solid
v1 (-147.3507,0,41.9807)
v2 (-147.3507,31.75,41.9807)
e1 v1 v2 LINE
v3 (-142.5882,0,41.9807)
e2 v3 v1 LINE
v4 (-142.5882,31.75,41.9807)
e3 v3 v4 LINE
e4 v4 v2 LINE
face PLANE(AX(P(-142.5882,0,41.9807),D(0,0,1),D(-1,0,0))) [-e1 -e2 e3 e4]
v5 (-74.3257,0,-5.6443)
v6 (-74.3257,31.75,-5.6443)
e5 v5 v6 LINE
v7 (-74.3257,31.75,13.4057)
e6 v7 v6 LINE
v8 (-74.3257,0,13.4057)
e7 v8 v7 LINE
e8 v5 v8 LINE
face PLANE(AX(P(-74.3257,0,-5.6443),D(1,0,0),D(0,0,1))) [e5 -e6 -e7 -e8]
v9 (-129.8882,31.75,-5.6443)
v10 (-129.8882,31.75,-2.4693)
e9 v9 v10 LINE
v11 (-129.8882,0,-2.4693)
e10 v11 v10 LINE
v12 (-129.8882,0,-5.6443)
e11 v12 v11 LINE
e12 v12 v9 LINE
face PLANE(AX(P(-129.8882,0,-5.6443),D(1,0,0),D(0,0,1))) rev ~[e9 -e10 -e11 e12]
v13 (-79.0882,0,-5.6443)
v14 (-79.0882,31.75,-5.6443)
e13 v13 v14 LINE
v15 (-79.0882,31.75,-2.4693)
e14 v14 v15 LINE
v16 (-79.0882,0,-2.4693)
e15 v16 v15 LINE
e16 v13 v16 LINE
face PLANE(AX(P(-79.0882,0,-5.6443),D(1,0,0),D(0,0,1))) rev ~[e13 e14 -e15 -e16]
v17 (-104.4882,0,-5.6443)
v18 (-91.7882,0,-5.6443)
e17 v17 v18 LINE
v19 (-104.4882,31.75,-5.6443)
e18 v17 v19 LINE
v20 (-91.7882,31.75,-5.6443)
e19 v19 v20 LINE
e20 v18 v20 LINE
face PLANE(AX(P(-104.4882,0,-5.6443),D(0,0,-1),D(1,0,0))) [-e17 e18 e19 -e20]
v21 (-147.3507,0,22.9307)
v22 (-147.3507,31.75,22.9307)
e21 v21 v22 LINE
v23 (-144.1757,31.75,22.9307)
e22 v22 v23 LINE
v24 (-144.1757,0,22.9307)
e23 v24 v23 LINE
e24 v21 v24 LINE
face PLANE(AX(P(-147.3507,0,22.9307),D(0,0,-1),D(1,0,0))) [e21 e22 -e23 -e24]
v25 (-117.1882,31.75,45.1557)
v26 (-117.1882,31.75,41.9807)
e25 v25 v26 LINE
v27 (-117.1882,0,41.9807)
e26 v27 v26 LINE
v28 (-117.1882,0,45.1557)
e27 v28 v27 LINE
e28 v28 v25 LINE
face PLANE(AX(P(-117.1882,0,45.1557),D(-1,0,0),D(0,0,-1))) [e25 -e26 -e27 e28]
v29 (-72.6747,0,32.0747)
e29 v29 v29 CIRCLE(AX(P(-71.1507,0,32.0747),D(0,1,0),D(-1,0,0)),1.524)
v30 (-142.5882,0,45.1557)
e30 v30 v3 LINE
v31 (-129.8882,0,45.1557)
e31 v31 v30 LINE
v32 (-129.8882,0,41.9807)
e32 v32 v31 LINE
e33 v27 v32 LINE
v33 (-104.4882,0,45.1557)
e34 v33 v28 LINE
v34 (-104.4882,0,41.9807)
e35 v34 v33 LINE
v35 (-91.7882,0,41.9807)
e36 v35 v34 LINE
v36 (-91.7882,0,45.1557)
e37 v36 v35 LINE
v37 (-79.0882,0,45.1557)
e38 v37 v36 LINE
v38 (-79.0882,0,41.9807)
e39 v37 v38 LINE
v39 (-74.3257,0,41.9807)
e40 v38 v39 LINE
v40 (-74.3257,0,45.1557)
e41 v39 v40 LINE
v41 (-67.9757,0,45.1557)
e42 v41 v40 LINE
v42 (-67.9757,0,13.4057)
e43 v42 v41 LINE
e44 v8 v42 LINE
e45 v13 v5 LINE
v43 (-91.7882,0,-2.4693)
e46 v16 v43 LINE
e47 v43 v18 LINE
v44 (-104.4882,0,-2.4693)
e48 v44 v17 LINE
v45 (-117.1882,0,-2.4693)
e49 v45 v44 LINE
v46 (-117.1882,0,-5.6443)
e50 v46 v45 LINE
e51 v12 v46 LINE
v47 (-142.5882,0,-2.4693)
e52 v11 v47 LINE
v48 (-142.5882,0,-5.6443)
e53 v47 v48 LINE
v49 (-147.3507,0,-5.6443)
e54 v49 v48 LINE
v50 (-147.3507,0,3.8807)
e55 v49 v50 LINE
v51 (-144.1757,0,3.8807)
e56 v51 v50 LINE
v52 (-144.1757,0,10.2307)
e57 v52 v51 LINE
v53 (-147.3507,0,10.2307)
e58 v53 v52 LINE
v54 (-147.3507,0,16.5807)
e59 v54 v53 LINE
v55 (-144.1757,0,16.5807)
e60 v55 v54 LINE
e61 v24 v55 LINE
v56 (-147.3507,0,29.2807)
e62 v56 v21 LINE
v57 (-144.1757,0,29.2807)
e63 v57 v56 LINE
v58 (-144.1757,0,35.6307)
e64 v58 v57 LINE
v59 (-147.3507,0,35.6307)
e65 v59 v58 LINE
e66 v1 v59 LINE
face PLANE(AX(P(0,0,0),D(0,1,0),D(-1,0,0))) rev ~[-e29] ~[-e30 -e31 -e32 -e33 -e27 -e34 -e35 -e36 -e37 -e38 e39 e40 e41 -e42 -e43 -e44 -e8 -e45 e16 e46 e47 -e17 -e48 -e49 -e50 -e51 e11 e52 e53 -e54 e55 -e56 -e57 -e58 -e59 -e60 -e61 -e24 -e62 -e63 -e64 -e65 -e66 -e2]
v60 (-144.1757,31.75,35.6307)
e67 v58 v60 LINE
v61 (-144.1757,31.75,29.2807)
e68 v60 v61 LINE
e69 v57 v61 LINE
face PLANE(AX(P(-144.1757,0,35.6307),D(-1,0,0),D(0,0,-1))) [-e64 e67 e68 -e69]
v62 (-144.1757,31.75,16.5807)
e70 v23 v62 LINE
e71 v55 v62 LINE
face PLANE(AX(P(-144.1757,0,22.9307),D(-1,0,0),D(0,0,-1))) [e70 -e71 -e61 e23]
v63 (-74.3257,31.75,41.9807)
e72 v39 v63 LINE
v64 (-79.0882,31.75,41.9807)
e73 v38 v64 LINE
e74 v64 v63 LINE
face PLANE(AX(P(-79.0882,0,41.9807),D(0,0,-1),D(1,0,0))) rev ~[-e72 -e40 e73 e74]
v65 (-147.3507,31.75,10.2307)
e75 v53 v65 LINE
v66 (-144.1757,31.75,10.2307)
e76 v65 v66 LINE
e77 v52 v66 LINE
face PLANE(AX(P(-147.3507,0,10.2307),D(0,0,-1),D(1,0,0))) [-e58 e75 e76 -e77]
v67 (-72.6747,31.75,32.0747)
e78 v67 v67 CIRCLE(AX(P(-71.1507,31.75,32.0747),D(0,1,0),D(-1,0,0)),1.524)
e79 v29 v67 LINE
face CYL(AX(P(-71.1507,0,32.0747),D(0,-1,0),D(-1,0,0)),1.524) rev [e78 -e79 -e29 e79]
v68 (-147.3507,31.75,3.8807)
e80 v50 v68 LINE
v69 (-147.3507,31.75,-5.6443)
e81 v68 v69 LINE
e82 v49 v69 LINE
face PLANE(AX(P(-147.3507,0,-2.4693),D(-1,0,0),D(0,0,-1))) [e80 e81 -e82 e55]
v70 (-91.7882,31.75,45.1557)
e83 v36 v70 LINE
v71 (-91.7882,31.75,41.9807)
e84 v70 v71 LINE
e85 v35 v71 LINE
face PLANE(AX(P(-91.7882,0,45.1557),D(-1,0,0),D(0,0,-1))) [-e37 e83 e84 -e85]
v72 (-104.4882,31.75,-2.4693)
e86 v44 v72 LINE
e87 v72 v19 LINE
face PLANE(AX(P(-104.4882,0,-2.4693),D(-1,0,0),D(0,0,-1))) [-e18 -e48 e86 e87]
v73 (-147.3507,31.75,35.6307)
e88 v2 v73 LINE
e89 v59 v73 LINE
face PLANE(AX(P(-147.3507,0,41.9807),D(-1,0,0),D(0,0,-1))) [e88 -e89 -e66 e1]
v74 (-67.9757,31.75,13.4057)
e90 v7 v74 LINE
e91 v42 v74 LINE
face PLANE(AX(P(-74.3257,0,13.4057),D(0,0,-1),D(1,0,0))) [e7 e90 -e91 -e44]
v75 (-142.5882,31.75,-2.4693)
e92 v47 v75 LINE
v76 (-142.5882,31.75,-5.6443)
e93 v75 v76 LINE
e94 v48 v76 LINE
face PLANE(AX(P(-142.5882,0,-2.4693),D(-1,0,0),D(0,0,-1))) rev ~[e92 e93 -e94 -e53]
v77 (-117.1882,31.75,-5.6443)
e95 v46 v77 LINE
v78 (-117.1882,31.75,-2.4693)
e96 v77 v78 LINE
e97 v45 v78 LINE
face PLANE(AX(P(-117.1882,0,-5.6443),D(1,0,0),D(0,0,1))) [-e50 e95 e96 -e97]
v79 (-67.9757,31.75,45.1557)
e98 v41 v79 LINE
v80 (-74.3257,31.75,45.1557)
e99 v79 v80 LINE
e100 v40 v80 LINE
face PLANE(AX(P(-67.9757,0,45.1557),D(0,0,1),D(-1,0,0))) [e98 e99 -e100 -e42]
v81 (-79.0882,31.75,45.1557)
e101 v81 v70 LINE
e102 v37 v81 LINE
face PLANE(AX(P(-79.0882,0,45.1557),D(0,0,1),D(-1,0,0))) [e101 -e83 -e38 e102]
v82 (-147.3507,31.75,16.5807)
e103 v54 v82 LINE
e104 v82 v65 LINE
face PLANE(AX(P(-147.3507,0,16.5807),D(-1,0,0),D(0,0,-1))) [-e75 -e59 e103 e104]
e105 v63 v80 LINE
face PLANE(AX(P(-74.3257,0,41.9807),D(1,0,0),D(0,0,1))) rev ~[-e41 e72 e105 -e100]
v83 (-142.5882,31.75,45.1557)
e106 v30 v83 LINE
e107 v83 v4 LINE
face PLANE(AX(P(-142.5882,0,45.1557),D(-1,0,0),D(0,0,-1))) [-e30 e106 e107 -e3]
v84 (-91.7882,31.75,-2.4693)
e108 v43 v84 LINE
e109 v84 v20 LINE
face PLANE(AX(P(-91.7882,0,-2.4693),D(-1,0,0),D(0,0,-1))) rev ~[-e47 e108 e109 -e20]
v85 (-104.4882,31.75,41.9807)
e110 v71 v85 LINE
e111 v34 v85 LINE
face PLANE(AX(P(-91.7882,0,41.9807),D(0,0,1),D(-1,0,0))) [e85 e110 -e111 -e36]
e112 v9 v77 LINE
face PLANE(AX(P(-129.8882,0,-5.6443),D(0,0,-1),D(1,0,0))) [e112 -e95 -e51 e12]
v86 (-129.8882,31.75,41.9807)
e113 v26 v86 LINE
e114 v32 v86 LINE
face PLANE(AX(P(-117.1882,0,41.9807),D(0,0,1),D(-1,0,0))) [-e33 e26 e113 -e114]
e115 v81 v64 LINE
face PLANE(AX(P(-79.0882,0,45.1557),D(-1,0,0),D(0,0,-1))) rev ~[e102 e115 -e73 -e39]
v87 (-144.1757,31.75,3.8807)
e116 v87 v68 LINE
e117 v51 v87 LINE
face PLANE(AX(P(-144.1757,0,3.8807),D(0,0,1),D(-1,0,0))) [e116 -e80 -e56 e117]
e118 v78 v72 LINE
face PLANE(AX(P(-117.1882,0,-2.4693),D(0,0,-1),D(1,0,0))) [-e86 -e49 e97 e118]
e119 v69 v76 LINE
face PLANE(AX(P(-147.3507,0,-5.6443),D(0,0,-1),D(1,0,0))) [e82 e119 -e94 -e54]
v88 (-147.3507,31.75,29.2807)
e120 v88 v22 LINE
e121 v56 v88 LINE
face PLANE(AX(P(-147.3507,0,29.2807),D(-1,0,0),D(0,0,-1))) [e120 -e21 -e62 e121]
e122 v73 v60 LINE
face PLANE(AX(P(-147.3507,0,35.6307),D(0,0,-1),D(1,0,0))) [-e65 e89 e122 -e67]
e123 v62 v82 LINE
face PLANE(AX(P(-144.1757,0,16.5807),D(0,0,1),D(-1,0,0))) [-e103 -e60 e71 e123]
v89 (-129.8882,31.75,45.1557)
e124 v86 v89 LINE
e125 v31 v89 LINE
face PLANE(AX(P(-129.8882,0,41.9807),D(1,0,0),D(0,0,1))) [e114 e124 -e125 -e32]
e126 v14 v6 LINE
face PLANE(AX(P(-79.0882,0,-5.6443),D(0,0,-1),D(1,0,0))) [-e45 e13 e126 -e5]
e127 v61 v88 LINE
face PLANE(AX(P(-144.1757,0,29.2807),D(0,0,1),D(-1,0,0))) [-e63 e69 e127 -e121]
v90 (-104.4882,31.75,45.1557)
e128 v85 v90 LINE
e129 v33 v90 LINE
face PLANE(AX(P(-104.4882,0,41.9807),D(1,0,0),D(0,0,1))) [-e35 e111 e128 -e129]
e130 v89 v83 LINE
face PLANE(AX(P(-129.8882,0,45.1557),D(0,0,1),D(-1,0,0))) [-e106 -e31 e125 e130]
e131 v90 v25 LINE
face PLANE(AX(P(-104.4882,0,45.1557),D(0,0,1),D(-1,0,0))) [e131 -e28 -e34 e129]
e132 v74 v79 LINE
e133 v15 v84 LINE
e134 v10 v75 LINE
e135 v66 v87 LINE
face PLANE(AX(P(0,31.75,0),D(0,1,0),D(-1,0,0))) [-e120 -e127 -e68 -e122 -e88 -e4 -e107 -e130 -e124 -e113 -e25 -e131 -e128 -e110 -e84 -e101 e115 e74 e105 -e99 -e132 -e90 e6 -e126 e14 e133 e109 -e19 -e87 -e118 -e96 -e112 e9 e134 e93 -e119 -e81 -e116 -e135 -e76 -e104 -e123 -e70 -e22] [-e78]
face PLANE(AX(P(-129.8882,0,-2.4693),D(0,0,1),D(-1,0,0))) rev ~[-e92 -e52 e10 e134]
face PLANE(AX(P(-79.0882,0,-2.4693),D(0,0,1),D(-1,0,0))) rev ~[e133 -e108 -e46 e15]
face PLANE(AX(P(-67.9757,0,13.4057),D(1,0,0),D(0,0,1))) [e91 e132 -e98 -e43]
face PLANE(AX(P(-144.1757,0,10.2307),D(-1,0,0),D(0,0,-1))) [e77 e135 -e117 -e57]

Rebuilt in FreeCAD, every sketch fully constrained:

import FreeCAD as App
import Part
import Sketcher
from FreeCAD import Vector
Q = App.Units.Quantity


def add_polygon(sketch, points):
    """Adds a closed chain of lines whose ends are joined by coincident constraints."""
    first, n = sketch.GeometryCount, len(points)
    for a, b in zip(points, points[1:] + points[:1]):
        sketch.addGeometry(Part.LineSegment(App.Vector(*a, 0), App.Vector(*b, 0)), False)
    for i in range(n):
        sketch.addConstraint(Sketcher.Constraint("Coincident", first + i, 2, first + (i + 1) % n, 1))

doc = App.newDocument("Part")
body = doc.addObject("PartDesign::Body", "Body")

sketch1 = body.newObject("Sketcher::SketchObject", "Sketch")
sketch1.AttachmentSupport = (doc.getObject("XZ_Plane"), [""])
sketch1.MapMode = "FlatFace"
add_polygon(sketch1, [(-142.6, -5.6), (-147.4, -5.6), (-147.4, 3.9), (-144.2, 3.9), (-144.2, 10.2), (-147.4, 10.2), (-147.4, 16.6), (-144.2, 16.6), (-144.2, 22.9), (-147.4, 22.9), (-147.4, 29.3), (-144.2, 29.3), (-144.2, 35.6), (-147.4, 35.6), (-147.4, 42), (-142.6, 42), (-142.6, 45.2), (-129.9, 45.2), (-129.9, 42), (-117.2, 42), (-117.2, 45.2), (-104.5, 45.2), (-104.5, 42), (-91.8, 42), (-91.8, 45.2), (-79.1, 45.2), (-79.1, 42), (-74.3, 42), (-74.3, 45.2), (-68, 45.2), (-68, 13.4), (-74.3, 13.4), (-74.3, -5.6), (-79.1, -5.6), (-79.1, -2.5), (-91.8, -2.5), (-91.8, -5.6), (-104.5, -5.6), (-104.5, -2.5), (-117.2, -2.5), (-117.2, -5.6), (-129.9, -5.6), (-129.9, -2.5), (-142.6, -2.5)])
sketch1.addGeometry(Part.Circle(Vector(-71.2, 32.1, 0), Vector(0, 0, 1), 1.5), False)
sketch1.addConstraint([
    Sketcher.Constraint("Horizontal", 0),
    Sketcher.Constraint("Vertical", 1),
    Sketcher.Constraint("Horizontal", 2),
    Sketcher.Constraint("Vertical", 3),
    Sketcher.Constraint("Horizontal", 4),
    Sketcher.Constraint("Vertical", 5),
    Sketcher.Constraint("Horizontal", 6),
    Sketcher.Constraint("Vertical", 7),
    Sketcher.Constraint("Horizontal", 8),
    Sketcher.Constraint("Vertical", 9),
    Sketcher.Constraint("Horizontal", 10),
    Sketcher.Constraint("Vertical", 11),
    Sketcher.Constraint("Horizontal", 12),
    Sketcher.Constraint("Vertical", 13),
    Sketcher.Constraint("Horizontal", 14),
    Sketcher.Constraint("Vertical", 15),
    Sketcher.Constraint("Horizontal", 16),
    Sketcher.Constraint("Vertical", 17),
    Sketcher.Constraint("Horizontal", 18),
    Sketcher.Constraint("Vertical", 19),
    Sketcher.Constraint("Horizontal", 20),
    Sketcher.Constraint("Vertical", 21),
    Sketcher.Constraint("Horizontal", 22),
    Sketcher.Constraint("Vertical", 23),
    Sketcher.Constraint("Horizontal", 24),
    Sketcher.Constraint("Vertical", 25),
    Sketcher.Constraint("Horizontal", 26),
    Sketcher.Constraint("Vertical", 27),
    Sketcher.Constraint("Horizontal", 28),
    Sketcher.Constraint("Vertical", 29),
    Sketcher.Constraint("Horizontal", 30),
    Sketcher.Constraint("Vertical", 31),
    Sketcher.Constraint("Horizontal", 32),
    Sketcher.Constraint("Vertical", 33),
    Sketcher.Constraint("Horizontal", 34),
    Sketcher.Constraint("Vertical", 35),
    Sketcher.Constraint("Horizontal", 36),
    Sketcher.Constraint("Vertical", 37),
    Sketcher.Constraint("Horizontal", 38),
    Sketcher.Constraint("Vertical", 39),
    Sketcher.Constraint("Horizontal", 40),
    Sketcher.Constraint("Vertical", 41),
    Sketcher.Constraint("Horizontal", 42),
    Sketcher.Constraint("Vertical", 43),
    Sketcher.Constraint("Horizontal", 14, 2, 17, 2),
    Sketcher.Constraint("Horizontal", 16, 2, 19, 2),
    Sketcher.Constraint("Horizontal", 18, 2, 21, 2),
    Sketcher.Constraint("Horizontal", 20, 2, 23, 2),
    Sketcher.Constraint("Horizontal", 22, 2, 25, 2),
    Sketcher.Constraint("Horizontal", 24, 2, 27, 2),
    Sketcher.Constraint("Horizontal", 0, 2, 31, 2),
    Sketcher.Constraint("Horizontal", 32, 2, 35, 2),
    Sketcher.Constraint("Horizontal", 34, 2, 37, 2),
    Sketcher.Constraint("Horizontal", 36, 2, 39, 2),
    Sketcher.Constraint("Horizontal", 38, 2, 41, 2),
    Sketcher.Constraint("Vertical", 1, 2, 4, 2),
    Sketcher.Constraint("Vertical", 3, 2, 6, 2),
    Sketcher.Constraint("Vertical", 5, 2, 8, 2),
    Sketcher.Constraint("Vertical", 7, 2, 10, 2),
    Sketcher.Constraint("Vertical", 9, 2, 12, 2),
    Sketcher.Constraint("Vertical", 27, 2, 30, 2),
    Sketcher.Constraint("Vertical", 25, 2, 32, 2),
    Sketcher.Constraint("Vertical", 23, 2, 34, 2),
    Sketcher.Constraint("Vertical", 21, 2, 36, 2),
    Sketcher.Constraint("Vertical", 19, 2, 38, 2),
    Sketcher.Constraint("Vertical", 17, 2, 40, 2),
    Sketcher.Constraint("Vertical", 15, 2, 42, 2),
    Sketcher.Constraint("Equal", 16, 18),
    Sketcher.Constraint("Equal", 18, 20),
    Sketcher.Constraint("Equal", 20, 22),
    Sketcher.Constraint("Equal", 22, 24),
    Sketcher.Constraint("Equal", 14, 26),
    Sketcher.Constraint("Equal", 30, 3),
    Sketcher.Constraint("Equal", 3, 5),
    Sketcher.Constraint("Equal", 5, 7),
    Sketcher.Constraint("Equal", 7, 9),
    Sketcher.Constraint("Equal", 9, 11),
    Sketcher.Constraint("Equal", 11, 13),
    Sketcher.Constraint("Equal", 12, 15),
    Sketcher.Constraint("Equal", 27, 33),
    Sketcher.Constraint("Diameter", 44, Q("0.12 in")),
    Sketcher.Constraint("DistanceX", 16, 1, 16, 2, Q("0.5 in")),
    Sketcher.Constraint("DistanceX", 28, 1, 28, 2, Q("0.25 in")),
    Sketcher.Constraint("DistanceY", 29, 2, 29, 1, Q("1.25 in")),
    Sketcher.Constraint("DistanceY", 42, 2, 3, 2, Q("0.5 in")),
    Sketcher.Constraint("DistanceX", 0, 2, 0, 1, Q("0.1875 in")),
    Sketcher.Constraint("DistanceX", 2, 1, 2, 2, Q("0.125 in")),
    Sketcher.Constraint("DistanceY", 44, 3, 22, 2, Q("0.39 in")),
    Sketcher.Constraint("DistanceX", 0, 2, 44, 3, Q("3 in")),
    Sketcher.Constraint("DistanceX", 44, 3, -1, 1, Q("2.8012 in")),
    Sketcher.Constraint("DistanceY", -1, 1, 44, 3, 32.0747),
])
pad1 = body.newObject("PartDesign::Pad", "Pad")
pad1.Profile = sketch1
pad1.Length = Q("1.25 in")
pad1.Reversed = True

doc.recompute()
